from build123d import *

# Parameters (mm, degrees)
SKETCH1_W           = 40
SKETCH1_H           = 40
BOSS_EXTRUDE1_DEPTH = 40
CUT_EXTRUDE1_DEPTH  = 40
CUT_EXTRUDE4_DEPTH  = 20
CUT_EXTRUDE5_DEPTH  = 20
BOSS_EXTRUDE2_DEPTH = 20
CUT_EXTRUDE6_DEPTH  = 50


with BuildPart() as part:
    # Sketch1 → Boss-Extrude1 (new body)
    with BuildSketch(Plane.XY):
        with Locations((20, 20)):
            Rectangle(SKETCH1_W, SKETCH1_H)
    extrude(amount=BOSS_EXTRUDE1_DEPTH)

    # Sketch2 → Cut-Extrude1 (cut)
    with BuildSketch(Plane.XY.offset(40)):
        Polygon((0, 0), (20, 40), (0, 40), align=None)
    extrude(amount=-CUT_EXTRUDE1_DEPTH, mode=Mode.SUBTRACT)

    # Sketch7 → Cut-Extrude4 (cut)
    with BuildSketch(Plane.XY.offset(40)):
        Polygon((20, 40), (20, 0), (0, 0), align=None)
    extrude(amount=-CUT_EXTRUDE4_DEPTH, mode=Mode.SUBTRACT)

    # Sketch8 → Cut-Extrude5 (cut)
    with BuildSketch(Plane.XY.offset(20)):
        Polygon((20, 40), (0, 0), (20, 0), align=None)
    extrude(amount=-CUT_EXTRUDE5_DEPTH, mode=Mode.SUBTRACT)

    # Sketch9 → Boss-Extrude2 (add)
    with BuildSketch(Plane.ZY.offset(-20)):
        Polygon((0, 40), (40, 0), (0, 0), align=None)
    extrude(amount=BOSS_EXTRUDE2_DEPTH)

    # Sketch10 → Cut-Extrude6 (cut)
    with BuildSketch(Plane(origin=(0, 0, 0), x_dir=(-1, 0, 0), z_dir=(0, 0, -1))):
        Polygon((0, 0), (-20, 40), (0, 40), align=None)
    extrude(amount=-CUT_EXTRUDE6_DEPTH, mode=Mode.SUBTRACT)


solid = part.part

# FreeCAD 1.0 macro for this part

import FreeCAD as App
import Part
import Sketcher
Q = App.Units.Quantity

doc = App.newDocument("Part")
body = doc.addObject("PartDesign::Body", "Body")

sketch1 = doc.addObject("Sketcher::SketchObject", "Sketch")
body.addObject(sketch1)
sketch1.AttachmentSupport = (doc.XY_Plane, [""])
sketch1.MapMode = "FlatFace"
sketch1.addGeometry([
    Part.LineSegment(App.Vector(0, 40, 0), App.Vector(0, 0, 0)),
    Part.LineSegment(App.Vector(0, 0, 0), App.Vector(40, 0, 0)),
    Part.LineSegment(App.Vector(40, 0, 0), App.Vector(40, 40, 0)),
    Part.LineSegment(App.Vector(40, 40, 0), App.Vector(0, 40, 0)),
], False)
sketch1.addConstraint([
    Sketcher.Constraint("Coincident", 0, 2, 1, 1),
    Sketcher.Constraint("Coincident", 1, 2, 2, 1),
    Sketcher.Constraint("Coincident", 2, 2, 3, 1),
    Sketcher.Constraint("Coincident", 3, 2, 0, 1),
    Sketcher.Constraint("Vertical", 0),
    Sketcher.Constraint("Horizontal", 1),
    Sketcher.Constraint("Vertical", 2),
    Sketcher.Constraint("Horizontal", 3),
    Sketcher.Constraint("Coincident", 0, 2, -1, 1),
    Sketcher.Constraint("Equal", 3, 0),
    Sketcher.Constraint("DistanceX", 1, 1, 1, 2, Q("40 mm")),
])
pad1 = doc.addObject("PartDesign::Pad", "Pad")
body.addObject(pad1)
pad1.Profile = sketch1
pad1.Length = 40

sketch2 = doc.addObject("Sketcher::SketchObject", "Sketch001")
body.addObject(sketch2)
sketch2.AttachmentSupport = (doc.XY_Plane, [""])
sketch2.MapMode = "FlatFace"
sketch2.AttachmentOffset = App.Placement(App.Vector(0, 0, 40), App.Rotation())
sketch2.addGeometry([
    Part.LineSegment(App.Vector(0, 0, 0), App.Vector(20, 40, 0)),
    Part.LineSegment(App.Vector(20, 40, 0), App.Vector(0, 40, 0)),
    Part.LineSegment(App.Vector(0, 40, 0), App.Vector(0, 0, 0)),
], False)
sketch2.addConstraint([
    Sketcher.Constraint("Coincident", 0, 2, 1, 1),
    Sketcher.Constraint("Coincident", 1, 2, 2, 1),
    Sketcher.Constraint("Coincident", 2, 2, 0, 1),
    Sketcher.Constraint("Horizontal", 1),
    Sketcher.Constraint("Vertical", 2),
    Sketcher.Constraint("Coincident", 2, 2, -1, 1),
    Sketcher.Constraint("DistanceX", 1, 2, 1, 1, Q("20 mm")),
    Sketcher.Constraint("DistanceY", 2, 2, 2, 1, Q("40 mm")),
])
pocket1 = doc.addObject("PartDesign::Pocket", "Pocket")
body.addObject(pocket1)
pocket1.Profile = sketch2
pocket1.Length = 40

sketch3 = doc.addObject("Sketcher::SketchObject", "Sketch002")
body.addObject(sketch3)
sketch3.AttachmentSupport = (doc.XY_Plane, [""])
sketch3.MapMode = "FlatFace"
sketch3.AttachmentOffset = App.Placement(App.Vector(0, 0, 40), App.Rotation())
sketch3.addGeometry([
    Part.LineSegment(App.Vector(20, 0, 0), App.Vector(20, 40, 0)),
    Part.LineSegment(App.Vector(20, 40, 0), App.Vector(0, 0, 0)),
    Part.LineSegment(App.Vector(0, 0, 0), App.Vector(20, 0, 0)),
], False)
sketch3.addConstraint([
    Sketcher.Constraint("Coincident", 0, 2, 1, 1),
    Sketcher.Constraint("Coincident", 1, 2, 2, 1),
    Sketcher.Constraint("Coincident", 2, 2, 0, 1),
    Sketcher.Constraint("Vertical", 0),
    Sketcher.Constraint("Horizontal", 2),
    Sketcher.Constraint("Coincident", 1, 2, -1, 1),
    Sketcher.Constraint("DistanceX", 2, 1, 2, 2, Q("20 mm")),
    Sketcher.Constraint("DistanceY", 0, 1, 0, 2, Q("40 mm")),
])
pocket2 = doc.addObject("PartDesign::Pocket", "Pocket001")
body.addObject(pocket2)
pocket2.Profile = sketch3
pocket2.Length = 20

sketch4 = doc.addObject("Sketcher::SketchObject", "Sketch003")
body.addObject(sketch4)
sketch4.AttachmentSupport = (doc.XY_Plane, [""])
sketch4.MapMode = "FlatFace"
sketch4.AttachmentOffset = App.Placement(App.Vector(0, 0, 20), App.Rotation())
sketch4.addGeometry([
    Part.LineSegment(App.Vector(20, 40, 0), App.Vector(0, 0, 0)),
    Part.LineSegment(App.Vector(0, 0, 0), App.Vector(20, 0, 0)),
    Part.LineSegment(App.Vector(20, 0, 0), App.Vector(20, 40, 0)),
], False)
sketch4.addConstraint([
    Sketcher.Constraint("Coincident", 0, 2, 1, 1),
    Sketcher.Constraint("Coincident", 1, 2, 2, 1),
    Sketcher.Constraint("Coincident", 2, 2, 0, 1),
    Sketcher.Constraint("Horizontal", 1),
    Sketcher.Constraint("Vertical", 2),
    Sketcher.Constraint("Coincident", 0, 2, -1, 1),
    Sketcher.Constraint("DistanceX", 1, 1, 1, 2, Q("20 mm")),
    Sketcher.Constraint("DistanceY", 2, 1, 2, 2, Q("40 mm")),
])
pocket3 = doc.addObject("PartDesign::Pocket", "Pocket002")
body.addObject(pocket3)
pocket3.Profile = sketch4
pocket3.Length = 20

sketch5 = doc.addObject("Sketcher::SketchObject", "Sketch004")
body.addObject(sketch5)
sketch5.AttachmentSupport = (doc.YZ_Plane, [""])
sketch5.MapMode = "FlatFace"
sketch5.AttachmentOffset = App.Placement(App.Vector(0, 0, 20), App.Rotation())
sketch5.addGeometry([
    Part.LineSegment(App.Vector(0, 40, 0), App.Vector(40, 0, 0)),
    Part.LineSegment(App.Vector(40, 0, 0), App.Vector(0, 0, 0)),
    Part.LineSegment(App.Vector(0, 0, 0), App.Vector(0, 40, 0)),
], False)
sketch5.addConstraint([
    Sketcher.Constraint("Coincident", 0, 2, 1, 1),
    Sketcher.Constraint("Coincident", 1, 2, 2, 1),
    Sketcher.Constraint("Coincident", 2, 2, 0, 1),
    Sketcher.Constraint("Horizontal", 1),
    Sketcher.Constraint("Vertical", 2),
    Sketcher.Constraint("Coincident", 1, 2, -1, 1),
    Sketcher.Constraint("Equal", 1, 2),
    Sketcher.Constraint("DistanceX", 1, 2, 1, 1, Q("40 mm")),
])
pad2 = doc.addObject("PartDesign::Pad", "Pad001")
body.addObject(pad2)
pad2.Profile = sketch5
pad2.Length = 20
pad2.Reversed = True

sketch6 = doc.addObject("Sketcher::SketchObject", "Sketch005")
body.addObject(sketch6)
sketch6.AttachmentSupport = (doc.XY_Plane, [""])
sketch6.MapMode = "FlatFace"
sketch6.addGeometry([
    Part.LineSegment(App.Vector(20, 40, 0), App.Vector(0, 0, 0)),
    Part.LineSegment(App.Vector(0, 0, 0), App.Vector(0, 40, 0)),
    Part.LineSegment(App.Vector(0, 40, 0), App.Vector(20, 40, 0)),
], False)
sketch6.addConstraint([
    Sketcher.Constraint("Coincident", 0, 2, 1, 1),
    Sketcher.Constraint("Coincident", 1, 2, 2, 1),
    Sketcher.Constraint("Coincident", 2, 2, 0, 1),
    Sketcher.Constraint("Vertical", 1),
    Sketcher.Constraint("Horizontal", 2),
    Sketcher.Constraint("Coincident", 0, 2, -1, 1),
    Sketcher.Constraint("DistanceX", 2, 1, 2, 2, Q("20 mm")),
    Sketcher.Constraint("DistanceY", 1, 1, 1, 2, Q("40 mm")),
])
pocket4 = doc.addObject("PartDesign::Pocket", "Pocket003")
body.addObject(pocket4)
pocket4.Profile = sketch6
pocket4.Length = 50
pocket4.Reversed = True

doc.recompute()
